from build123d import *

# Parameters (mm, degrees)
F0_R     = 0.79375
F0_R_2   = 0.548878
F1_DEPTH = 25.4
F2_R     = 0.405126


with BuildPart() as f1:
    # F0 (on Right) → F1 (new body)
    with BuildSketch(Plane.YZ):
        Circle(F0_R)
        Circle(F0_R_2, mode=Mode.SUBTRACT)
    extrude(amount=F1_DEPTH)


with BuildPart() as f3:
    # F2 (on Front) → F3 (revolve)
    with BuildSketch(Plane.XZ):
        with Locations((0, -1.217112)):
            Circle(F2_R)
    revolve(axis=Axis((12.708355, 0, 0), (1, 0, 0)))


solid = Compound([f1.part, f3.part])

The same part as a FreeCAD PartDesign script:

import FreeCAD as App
import Part
import Sketcher

V = App.Vector
Q = App.Units.Quantity

doc = App.newDocument("Part")
body = doc.addObject("PartDesign::Body", "Body")

sketch1 = body.newObject("Sketcher::SketchObject", "Sketch")
sketch1.AttachmentSupport = (doc.getObject("YZ_Plane"), [""])
sketch1.MapMode = "FlatFace"
sketch1.addGeometry(Part.Circle(V(0, 0, 0), V(0, 0, 1), 0.8), False)
sketch1.addGeometry(Part.Circle(V(0, 0, 0), V(0, 0, 1), 0.5), False)
sketch1.addConstraint(Sketcher.Constraint("Coincident", 0, 3, -1, 1))
sketch1.addConstraint(Sketcher.Constraint("Coincident", 1, 3, -1, 1))
sketch1.addConstraint(Sketcher.Constraint("Diameter", 0, Q("0.0625 in")))
sketch1.addConstraint(Sketcher.Constraint("Diameter", 1, 1.097756))
pad1 = body.newObject("PartDesign::Pad", "Pad")
pad1.Profile = sketch1
pad1.Length = Q("1 in")
body2 = doc.addObject("PartDesign::Body", "Body001")

sketch2 = body2.newObject("Sketcher::SketchObject", "Sketch001")
sketch2.AttachmentSupport = (doc.getObject("XZ_Plane001"), [""])
sketch2.MapMode = "FlatFace"
sketch2.addGeometry(Part.Circle(V(0, -1.22, 0), V(0, 0, 1), 0.41), False)
sketch2.addConstraint(Sketcher.Constraint("PointOnObject", 0, 3, -2))
sketch2.addConstraint(Sketcher.Constraint("Diameter", 0, 0.810252))
sketch2.addConstraint(Sketcher.Constraint("DistanceY", 0, 3, -1, 1, 1.217112))
revolution = body2.newObject("PartDesign::Revolution", "Revolution")
revolution.Profile = sketch2
revolution.ReferenceAxis = (sketch2, ["H_Axis"])
revolution.Angle = 360

doc.recompute()
